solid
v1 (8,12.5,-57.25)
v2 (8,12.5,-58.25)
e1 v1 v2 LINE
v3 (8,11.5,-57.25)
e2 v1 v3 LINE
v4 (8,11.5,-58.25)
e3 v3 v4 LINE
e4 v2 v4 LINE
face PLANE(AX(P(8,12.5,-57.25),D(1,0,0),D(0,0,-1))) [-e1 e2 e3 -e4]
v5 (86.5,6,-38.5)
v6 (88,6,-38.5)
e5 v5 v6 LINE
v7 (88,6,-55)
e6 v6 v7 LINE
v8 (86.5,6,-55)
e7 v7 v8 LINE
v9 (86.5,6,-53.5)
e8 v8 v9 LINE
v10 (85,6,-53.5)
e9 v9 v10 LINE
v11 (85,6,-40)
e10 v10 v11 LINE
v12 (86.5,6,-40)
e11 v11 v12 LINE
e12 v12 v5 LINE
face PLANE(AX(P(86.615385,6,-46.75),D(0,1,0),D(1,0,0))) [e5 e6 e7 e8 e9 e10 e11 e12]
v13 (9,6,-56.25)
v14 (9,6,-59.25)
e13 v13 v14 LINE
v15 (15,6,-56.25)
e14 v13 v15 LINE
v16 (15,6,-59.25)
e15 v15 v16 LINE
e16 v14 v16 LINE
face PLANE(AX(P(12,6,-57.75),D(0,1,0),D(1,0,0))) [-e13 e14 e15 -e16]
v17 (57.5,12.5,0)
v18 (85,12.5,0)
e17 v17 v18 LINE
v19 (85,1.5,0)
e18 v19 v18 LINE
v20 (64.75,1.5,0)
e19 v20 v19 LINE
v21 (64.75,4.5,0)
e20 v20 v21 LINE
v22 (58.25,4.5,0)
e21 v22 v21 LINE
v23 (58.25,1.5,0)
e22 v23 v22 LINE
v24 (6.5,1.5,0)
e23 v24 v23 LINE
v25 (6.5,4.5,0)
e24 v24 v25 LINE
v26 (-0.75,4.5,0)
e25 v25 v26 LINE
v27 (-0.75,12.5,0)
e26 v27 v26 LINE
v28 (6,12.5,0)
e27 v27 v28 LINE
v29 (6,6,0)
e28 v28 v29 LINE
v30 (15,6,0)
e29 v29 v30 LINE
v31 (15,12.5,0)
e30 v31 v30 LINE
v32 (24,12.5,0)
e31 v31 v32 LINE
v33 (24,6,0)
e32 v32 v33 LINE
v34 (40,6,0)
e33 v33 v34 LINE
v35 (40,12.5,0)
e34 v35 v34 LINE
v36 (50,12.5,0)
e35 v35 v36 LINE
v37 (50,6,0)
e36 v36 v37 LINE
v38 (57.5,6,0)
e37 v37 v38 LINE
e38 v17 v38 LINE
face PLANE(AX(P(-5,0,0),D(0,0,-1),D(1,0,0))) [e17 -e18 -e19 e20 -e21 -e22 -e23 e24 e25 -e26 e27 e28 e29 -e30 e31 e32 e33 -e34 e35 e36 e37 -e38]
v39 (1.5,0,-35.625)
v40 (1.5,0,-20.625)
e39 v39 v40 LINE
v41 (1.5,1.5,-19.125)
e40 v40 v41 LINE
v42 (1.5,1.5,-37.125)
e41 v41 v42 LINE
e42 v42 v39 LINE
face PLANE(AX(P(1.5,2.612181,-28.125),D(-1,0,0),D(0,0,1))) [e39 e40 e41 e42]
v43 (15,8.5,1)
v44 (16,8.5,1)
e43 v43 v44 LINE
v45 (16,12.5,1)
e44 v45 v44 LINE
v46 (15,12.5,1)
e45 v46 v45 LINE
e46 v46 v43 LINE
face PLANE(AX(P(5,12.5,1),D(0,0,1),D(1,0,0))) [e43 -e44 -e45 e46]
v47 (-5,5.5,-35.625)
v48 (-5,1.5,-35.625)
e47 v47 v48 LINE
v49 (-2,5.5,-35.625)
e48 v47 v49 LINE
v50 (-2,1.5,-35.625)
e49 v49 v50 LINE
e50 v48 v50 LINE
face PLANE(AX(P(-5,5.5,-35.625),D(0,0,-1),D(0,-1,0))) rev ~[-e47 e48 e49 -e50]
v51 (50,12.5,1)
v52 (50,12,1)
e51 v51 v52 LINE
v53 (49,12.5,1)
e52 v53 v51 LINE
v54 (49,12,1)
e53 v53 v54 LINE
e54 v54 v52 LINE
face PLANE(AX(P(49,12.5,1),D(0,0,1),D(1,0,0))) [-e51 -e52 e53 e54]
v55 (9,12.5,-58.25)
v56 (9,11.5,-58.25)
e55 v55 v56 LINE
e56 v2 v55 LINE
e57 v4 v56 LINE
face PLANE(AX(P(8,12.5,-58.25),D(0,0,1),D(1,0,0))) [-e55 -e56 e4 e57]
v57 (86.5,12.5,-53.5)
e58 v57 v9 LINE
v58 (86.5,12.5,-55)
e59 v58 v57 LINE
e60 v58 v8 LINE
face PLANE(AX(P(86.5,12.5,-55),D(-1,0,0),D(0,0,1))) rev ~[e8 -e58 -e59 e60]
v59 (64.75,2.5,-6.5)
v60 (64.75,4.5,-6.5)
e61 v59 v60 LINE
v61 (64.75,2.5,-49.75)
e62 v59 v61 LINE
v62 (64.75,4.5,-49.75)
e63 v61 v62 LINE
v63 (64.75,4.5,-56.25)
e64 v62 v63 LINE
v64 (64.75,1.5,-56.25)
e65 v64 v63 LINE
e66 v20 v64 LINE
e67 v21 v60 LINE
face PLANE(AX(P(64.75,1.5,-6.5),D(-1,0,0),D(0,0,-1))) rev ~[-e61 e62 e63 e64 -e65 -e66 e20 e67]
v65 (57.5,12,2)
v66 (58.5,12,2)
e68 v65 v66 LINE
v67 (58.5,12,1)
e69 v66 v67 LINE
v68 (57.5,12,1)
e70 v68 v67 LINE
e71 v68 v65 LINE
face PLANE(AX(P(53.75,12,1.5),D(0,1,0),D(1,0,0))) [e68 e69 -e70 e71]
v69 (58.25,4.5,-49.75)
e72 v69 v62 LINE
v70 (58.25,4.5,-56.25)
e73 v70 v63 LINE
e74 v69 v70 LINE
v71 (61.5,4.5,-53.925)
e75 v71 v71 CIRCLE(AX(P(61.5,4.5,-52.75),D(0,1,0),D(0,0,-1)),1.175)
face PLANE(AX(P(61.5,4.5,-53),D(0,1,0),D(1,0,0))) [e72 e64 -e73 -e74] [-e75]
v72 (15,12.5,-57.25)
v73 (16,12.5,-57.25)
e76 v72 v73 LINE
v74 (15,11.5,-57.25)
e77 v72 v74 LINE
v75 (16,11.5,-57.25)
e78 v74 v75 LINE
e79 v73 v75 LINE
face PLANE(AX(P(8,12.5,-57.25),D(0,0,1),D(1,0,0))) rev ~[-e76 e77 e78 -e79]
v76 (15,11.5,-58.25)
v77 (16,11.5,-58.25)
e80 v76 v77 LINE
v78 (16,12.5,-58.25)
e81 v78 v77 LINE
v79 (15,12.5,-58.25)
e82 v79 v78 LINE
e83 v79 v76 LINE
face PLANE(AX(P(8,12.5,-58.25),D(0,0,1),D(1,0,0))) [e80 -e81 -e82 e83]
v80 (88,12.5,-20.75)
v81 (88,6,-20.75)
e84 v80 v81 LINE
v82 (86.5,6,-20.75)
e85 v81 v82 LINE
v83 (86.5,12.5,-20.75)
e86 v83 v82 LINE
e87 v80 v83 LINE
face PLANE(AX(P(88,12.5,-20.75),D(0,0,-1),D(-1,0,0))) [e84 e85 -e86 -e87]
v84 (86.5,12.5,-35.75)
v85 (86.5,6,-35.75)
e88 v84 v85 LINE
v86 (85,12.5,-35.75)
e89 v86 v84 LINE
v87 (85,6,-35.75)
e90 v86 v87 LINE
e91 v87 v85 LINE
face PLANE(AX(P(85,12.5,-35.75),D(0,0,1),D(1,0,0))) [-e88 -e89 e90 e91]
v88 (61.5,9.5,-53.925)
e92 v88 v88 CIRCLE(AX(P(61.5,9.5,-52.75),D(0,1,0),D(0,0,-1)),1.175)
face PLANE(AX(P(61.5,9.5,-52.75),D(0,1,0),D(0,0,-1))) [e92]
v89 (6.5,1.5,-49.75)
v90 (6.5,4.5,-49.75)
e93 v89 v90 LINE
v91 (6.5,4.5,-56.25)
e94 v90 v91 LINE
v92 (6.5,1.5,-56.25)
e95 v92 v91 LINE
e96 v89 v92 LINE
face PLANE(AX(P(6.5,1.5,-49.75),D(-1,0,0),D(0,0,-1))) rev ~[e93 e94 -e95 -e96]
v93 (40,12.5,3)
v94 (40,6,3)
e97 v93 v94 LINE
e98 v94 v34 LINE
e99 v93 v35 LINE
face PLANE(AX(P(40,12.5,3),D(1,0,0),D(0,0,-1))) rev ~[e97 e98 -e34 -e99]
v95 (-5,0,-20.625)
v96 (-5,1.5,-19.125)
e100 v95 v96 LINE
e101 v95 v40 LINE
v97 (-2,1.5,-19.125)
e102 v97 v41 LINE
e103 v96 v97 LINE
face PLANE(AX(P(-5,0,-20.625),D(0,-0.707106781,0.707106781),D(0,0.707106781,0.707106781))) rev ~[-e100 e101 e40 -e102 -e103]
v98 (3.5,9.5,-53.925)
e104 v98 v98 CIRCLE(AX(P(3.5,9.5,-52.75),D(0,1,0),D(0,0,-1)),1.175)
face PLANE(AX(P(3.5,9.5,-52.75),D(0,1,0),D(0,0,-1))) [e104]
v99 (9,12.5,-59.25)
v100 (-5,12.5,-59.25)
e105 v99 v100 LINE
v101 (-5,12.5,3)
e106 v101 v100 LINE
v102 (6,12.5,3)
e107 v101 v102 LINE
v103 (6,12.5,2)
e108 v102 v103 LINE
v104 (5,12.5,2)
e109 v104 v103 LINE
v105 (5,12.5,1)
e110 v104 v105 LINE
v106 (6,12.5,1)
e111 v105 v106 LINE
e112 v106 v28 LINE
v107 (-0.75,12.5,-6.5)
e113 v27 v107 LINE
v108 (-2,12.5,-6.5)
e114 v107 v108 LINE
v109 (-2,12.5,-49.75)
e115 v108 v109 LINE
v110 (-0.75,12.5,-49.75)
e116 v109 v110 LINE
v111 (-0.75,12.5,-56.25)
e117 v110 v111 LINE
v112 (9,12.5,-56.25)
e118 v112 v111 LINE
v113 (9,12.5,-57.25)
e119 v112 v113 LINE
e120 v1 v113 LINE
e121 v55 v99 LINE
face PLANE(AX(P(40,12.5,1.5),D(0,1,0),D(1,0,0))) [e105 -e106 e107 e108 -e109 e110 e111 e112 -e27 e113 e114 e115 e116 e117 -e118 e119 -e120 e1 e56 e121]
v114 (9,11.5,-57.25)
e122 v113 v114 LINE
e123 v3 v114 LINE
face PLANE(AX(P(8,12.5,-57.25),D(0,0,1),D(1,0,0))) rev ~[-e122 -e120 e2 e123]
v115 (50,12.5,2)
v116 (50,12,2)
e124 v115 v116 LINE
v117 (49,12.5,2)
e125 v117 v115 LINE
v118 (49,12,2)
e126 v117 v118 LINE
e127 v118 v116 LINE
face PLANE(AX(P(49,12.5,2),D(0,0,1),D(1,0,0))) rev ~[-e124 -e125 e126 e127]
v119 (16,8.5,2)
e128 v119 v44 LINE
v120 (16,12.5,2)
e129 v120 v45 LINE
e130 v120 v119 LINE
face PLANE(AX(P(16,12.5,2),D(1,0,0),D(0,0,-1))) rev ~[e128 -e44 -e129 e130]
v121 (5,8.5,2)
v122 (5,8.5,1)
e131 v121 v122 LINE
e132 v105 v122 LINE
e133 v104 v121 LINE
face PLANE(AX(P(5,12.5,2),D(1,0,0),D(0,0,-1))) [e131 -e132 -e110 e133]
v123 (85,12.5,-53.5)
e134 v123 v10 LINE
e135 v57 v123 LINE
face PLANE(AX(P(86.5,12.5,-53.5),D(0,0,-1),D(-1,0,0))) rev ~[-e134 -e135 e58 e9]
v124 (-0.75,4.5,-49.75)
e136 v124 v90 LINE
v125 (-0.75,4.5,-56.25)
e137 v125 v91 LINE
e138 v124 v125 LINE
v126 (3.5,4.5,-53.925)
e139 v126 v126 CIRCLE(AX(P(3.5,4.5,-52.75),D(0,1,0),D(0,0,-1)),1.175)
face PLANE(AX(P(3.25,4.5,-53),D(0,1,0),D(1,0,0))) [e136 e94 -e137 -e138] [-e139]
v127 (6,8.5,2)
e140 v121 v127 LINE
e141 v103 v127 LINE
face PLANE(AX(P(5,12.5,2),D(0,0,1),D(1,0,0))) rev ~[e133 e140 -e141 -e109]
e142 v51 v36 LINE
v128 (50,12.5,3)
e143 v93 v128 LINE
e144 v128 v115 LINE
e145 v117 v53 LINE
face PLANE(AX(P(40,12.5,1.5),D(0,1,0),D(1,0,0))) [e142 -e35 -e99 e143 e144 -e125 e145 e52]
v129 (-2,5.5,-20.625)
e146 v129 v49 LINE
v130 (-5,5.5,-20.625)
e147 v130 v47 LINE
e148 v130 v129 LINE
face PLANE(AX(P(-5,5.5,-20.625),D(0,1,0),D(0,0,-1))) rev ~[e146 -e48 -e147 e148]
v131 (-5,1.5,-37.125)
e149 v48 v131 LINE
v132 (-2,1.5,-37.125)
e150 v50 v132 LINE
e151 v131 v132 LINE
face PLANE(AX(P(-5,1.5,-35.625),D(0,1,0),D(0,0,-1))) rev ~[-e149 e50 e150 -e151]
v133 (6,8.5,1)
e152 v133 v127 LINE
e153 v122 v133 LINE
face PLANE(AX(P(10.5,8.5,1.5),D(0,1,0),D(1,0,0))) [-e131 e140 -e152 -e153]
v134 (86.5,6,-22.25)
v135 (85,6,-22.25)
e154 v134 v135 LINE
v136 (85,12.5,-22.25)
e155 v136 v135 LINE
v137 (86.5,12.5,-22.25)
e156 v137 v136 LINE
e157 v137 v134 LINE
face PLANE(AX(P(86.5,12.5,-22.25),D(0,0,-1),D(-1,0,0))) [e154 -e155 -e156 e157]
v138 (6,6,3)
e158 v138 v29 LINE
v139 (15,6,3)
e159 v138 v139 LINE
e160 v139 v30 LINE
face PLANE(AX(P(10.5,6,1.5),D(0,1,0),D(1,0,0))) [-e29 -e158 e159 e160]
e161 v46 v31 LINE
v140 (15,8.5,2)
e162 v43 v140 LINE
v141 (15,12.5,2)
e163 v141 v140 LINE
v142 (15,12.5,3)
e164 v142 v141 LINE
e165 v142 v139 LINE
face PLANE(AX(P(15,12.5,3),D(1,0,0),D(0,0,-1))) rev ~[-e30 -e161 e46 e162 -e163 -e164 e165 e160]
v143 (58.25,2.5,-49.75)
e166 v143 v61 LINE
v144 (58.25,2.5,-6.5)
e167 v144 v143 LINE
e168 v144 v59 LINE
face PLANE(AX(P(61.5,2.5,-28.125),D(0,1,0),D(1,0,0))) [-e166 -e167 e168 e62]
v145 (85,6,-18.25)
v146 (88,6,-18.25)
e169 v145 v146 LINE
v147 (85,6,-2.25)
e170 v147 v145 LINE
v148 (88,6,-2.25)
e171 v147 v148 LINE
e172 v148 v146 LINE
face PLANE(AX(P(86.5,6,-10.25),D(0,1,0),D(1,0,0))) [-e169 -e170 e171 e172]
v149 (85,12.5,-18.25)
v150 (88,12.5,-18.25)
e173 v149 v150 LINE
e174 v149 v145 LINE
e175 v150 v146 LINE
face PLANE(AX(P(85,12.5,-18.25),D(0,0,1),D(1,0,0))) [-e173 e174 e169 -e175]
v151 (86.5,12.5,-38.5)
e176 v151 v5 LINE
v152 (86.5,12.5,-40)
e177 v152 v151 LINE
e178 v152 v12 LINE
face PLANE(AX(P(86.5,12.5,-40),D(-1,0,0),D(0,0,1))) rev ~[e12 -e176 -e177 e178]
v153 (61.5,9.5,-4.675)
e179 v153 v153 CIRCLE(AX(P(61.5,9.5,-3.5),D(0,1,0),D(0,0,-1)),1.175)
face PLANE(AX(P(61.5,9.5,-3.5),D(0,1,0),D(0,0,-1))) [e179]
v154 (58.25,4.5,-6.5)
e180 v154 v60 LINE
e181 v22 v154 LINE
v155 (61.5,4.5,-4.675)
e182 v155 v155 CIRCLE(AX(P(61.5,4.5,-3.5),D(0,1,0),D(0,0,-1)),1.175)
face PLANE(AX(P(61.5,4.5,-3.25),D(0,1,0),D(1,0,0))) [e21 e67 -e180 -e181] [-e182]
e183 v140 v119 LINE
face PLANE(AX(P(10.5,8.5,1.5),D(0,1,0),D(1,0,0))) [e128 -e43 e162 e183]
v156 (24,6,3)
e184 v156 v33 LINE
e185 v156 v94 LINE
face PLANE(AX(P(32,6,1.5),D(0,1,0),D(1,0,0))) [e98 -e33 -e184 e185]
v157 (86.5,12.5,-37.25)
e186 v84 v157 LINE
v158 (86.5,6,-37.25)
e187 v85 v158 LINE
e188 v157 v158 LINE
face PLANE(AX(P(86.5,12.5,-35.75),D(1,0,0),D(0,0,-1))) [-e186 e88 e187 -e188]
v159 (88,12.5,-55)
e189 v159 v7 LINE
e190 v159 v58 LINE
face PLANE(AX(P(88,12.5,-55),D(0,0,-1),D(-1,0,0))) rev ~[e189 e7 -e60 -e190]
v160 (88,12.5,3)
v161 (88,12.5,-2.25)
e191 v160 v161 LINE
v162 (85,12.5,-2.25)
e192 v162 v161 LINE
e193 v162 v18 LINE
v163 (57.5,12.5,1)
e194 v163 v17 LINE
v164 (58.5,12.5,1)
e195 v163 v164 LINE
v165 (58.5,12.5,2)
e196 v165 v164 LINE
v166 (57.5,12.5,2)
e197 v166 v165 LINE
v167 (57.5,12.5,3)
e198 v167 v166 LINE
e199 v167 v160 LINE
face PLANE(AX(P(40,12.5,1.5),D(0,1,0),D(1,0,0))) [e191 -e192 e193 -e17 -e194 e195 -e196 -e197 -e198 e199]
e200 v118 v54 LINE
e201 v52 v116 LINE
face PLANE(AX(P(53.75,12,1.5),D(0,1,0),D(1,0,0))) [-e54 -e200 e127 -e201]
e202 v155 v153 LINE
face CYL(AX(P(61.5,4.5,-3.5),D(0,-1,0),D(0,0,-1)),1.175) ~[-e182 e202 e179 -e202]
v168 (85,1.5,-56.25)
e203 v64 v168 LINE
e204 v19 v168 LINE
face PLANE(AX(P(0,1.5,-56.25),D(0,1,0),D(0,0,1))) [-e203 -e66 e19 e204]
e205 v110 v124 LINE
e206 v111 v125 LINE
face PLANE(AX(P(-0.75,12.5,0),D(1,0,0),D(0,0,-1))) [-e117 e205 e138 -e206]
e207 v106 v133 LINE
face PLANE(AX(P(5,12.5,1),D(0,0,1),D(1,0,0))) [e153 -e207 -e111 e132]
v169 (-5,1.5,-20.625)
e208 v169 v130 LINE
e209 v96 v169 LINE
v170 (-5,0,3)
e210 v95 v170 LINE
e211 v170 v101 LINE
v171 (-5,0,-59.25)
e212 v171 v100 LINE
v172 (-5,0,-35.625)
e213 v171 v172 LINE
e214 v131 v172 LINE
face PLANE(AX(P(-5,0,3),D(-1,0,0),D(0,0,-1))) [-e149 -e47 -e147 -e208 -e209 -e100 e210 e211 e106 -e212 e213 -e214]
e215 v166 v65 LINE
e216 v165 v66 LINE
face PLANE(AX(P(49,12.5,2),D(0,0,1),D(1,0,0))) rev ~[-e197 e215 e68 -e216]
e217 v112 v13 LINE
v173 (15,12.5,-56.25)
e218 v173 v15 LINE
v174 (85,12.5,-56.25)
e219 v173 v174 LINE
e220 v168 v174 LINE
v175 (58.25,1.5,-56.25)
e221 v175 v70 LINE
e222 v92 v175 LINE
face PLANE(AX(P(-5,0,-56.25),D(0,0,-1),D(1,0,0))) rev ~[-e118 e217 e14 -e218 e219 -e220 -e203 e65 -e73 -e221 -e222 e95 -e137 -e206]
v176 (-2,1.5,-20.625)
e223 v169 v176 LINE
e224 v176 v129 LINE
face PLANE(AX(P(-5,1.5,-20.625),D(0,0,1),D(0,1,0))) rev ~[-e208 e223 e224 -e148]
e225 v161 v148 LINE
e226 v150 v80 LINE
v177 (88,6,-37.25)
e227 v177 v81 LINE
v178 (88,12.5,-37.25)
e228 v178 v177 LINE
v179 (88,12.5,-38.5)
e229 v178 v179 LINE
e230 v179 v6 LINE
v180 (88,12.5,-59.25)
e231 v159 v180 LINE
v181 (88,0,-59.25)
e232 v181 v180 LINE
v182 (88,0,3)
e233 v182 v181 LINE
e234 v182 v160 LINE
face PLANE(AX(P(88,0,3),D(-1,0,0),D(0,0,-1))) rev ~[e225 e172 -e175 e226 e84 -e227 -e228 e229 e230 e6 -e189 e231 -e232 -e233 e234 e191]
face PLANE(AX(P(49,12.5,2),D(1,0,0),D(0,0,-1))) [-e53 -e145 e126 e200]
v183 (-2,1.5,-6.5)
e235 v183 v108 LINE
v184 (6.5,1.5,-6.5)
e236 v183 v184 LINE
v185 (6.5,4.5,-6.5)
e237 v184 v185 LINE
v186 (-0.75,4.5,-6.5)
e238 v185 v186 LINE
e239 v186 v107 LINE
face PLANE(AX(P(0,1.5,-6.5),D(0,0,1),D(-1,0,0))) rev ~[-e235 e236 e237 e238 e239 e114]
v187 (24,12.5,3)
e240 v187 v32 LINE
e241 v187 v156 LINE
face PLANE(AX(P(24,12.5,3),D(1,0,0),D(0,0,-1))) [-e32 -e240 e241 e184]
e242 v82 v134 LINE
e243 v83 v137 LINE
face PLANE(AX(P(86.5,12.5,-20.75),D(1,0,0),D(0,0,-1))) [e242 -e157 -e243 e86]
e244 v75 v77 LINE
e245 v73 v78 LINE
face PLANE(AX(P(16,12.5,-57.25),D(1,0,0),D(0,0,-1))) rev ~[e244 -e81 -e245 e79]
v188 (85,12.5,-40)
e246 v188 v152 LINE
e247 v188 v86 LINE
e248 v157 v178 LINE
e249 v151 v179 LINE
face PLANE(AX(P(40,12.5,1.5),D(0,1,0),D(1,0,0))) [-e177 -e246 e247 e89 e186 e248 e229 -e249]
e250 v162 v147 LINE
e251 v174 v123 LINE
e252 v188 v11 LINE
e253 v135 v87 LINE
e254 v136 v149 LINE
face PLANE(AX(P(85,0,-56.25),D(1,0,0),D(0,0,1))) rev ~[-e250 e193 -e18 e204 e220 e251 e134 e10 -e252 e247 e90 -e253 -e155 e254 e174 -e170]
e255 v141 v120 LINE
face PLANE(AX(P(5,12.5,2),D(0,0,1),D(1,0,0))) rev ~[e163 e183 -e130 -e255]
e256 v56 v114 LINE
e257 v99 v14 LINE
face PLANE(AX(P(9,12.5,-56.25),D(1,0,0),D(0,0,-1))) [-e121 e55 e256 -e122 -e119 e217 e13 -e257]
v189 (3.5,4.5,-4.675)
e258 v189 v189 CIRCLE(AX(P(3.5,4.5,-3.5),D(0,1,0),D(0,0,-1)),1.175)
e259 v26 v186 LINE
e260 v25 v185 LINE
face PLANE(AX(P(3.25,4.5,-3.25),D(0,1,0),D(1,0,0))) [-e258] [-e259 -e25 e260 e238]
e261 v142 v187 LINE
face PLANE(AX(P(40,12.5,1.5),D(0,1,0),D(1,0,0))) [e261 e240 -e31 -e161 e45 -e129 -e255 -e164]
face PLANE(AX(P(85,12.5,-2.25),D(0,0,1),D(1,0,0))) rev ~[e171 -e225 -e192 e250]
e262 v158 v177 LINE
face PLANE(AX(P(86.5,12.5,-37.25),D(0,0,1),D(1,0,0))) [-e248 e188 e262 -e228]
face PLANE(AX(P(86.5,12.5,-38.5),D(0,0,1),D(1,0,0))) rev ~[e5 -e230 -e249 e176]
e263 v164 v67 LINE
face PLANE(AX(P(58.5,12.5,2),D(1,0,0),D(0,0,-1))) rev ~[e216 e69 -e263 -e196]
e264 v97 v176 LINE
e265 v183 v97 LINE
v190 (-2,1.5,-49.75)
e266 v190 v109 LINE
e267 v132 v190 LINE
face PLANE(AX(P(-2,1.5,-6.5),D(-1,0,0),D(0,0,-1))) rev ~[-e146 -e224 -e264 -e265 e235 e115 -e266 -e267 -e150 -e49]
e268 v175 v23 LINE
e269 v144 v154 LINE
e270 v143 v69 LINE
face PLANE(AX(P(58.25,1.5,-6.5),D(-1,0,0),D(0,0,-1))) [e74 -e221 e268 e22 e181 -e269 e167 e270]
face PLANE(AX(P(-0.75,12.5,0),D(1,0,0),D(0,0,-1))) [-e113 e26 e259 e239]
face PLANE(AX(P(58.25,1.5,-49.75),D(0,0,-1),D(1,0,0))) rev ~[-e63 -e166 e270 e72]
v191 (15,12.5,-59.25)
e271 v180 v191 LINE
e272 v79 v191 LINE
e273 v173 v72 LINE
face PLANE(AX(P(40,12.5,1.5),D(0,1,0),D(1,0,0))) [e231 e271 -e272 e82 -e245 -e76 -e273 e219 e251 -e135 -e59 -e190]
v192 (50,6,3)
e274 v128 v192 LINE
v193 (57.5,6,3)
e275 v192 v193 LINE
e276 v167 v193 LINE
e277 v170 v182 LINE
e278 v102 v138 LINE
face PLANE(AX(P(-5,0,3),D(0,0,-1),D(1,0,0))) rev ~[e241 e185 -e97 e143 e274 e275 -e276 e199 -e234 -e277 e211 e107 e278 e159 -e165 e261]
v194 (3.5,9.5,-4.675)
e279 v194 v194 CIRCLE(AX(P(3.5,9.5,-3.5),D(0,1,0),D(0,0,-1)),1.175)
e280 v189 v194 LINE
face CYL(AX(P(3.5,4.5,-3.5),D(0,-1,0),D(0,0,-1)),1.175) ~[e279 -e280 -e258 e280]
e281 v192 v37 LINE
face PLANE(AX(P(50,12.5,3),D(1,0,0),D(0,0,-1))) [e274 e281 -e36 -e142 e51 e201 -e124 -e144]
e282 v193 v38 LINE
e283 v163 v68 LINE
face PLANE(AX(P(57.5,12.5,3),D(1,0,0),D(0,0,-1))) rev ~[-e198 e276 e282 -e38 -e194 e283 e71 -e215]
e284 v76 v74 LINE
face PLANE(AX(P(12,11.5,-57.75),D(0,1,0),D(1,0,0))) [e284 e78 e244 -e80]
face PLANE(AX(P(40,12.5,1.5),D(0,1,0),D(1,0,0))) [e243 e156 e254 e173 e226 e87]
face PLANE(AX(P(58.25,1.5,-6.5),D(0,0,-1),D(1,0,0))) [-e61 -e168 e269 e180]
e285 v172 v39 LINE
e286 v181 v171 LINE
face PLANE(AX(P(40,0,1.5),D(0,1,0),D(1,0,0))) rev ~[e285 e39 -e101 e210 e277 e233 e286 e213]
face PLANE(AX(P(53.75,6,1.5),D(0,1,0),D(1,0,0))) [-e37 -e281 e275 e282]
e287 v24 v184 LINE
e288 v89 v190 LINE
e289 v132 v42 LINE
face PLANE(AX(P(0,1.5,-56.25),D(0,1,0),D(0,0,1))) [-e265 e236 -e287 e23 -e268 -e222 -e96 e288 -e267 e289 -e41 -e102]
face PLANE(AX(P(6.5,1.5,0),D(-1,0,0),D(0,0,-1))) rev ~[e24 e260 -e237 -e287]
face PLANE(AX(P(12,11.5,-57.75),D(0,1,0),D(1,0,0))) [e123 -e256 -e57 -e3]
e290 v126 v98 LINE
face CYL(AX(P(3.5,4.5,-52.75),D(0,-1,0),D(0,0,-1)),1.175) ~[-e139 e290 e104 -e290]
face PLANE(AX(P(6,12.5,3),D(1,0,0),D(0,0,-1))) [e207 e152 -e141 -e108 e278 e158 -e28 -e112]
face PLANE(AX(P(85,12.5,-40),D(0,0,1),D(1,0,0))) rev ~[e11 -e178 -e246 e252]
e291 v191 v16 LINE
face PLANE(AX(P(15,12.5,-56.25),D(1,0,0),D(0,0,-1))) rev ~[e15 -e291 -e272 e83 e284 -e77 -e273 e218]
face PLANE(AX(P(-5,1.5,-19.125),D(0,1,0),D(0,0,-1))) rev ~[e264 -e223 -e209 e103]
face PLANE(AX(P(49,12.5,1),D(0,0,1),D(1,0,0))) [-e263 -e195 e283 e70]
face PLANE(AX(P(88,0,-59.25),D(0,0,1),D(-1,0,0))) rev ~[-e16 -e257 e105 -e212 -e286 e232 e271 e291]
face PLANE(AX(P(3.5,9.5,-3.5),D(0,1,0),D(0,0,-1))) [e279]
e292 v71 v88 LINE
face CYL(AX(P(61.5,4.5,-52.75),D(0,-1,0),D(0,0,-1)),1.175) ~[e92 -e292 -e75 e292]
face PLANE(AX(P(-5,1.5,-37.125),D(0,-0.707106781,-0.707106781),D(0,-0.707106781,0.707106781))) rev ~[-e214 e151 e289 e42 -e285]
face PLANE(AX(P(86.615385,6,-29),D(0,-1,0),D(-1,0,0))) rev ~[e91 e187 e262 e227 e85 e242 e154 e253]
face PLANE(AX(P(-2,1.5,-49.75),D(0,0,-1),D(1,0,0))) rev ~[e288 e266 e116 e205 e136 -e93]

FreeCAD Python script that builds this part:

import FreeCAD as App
import Part
import Sketcher
from FreeCAD import Vector
Q = App.Units.Quantity


def add_polygon(sketch, points):
    """Adds a closed chain of lines whose ends are joined by coincident constraints."""
    first, n = sketch.GeometryCount, len(points)
    for a, b in zip(points, points[1:] + points[:1]):
        sketch.addGeometry(Part.LineSegment(App.Vector(*a, 0), App.Vector(*b, 0)), False)
    for i in range(n):
        sketch.addConstraint(Sketcher.Constraint("Coincident", first + i, 2, first + (i + 1) % n, 1))

doc = App.newDocument("Part")
body = doc.addObject("PartDesign::Body", "Body")

# Sketch on XZ plane
sketch1 = doc.addObject("Sketcher::SketchObject", "Sketch")
body.addObject(sketch1)
sketch1.AttachmentSupport = (doc.XZ_Plane, [""])
sketch1.MapMode = "FlatFace"
add_polygon(sketch1, [(0, -56), (0, 0), (85, 0), (85, -56)])  # lines 0-3
sketch1.addConstraint(Sketcher.Constraint("Vertical", 0))
sketch1.addConstraint(Sketcher.Constraint("Horizontal", 1))
sketch1.addConstraint(Sketcher.Constraint("Vertical", 2))
sketch1.addConstraint(Sketcher.Constraint("Horizontal", 3))
sketch1.addConstraint(Sketcher.Constraint("Coincident", 0, 2, -1, 1))
sketch1.addConstraint(Sketcher.Constraint("DistanceX", 1, 1, 1, 2, Q("85 mm")))
sketch1.addConstraint(Sketcher.Constraint("DistanceY", 0, 1, 0, 2, Q("56.25 mm")))
pad1 = doc.addObject("PartDesign::Pad", "Pad")
body.addObject(pad1)
pad1.Profile = sketch1
pad1.Length = 1.5
pad1.Reversed = True

# Sketch on XZ plane
sketch2 = doc.addObject("Sketcher::SketchObject", "Sketch001")
body.addObject(sketch2)
sketch2.AttachmentSupport = (doc.XZ_Plane, [""])
sketch2.MapMode = "FlatFace"
sketch2.AttachmentOffset = App.Placement(Vector(0, 0, -1.5), App.Rotation())
add_polygon(sketch2, [(0, -6), (0, 0), (6, 0), (6, -6)])  # lines 0-3
add_polygon(sketch2, [(58, -6), (58, 0), (65, 0), (65, -6)])  # lines 4-7
add_polygon(sketch2, [(58, -56), (58, -50), (65, -50), (65, -56)])  # lines 8-11
add_polygon(sketch2, [(0, -56), (0, -50), (6, -50), (6, -56)])  # lines 12-15
sketch2.addConstraint(Sketcher.Constraint("Vertical", 0))
sketch2.addConstraint(Sketcher.Constraint("Horizontal", 1))
sketch2.addConstraint(Sketcher.Constraint("Vertical", 2))
sketch2.addConstraint(Sketcher.Constraint("Horizontal", 3))
sketch2.addConstraint(Sketcher.Constraint("Vertical", 4))
sketch2.addConstraint(Sketcher.Constraint("Horizontal", 5))
sketch2.addConstraint(Sketcher.Constraint("Vertical", 6))
sketch2.addConstraint(Sketcher.Constraint("Horizontal", 7))
sketch2.addConstraint(Sketcher.Constraint("Vertical", 8))
sketch2.addConstraint(Sketcher.Constraint("Horizontal", 9))
sketch2.addConstraint(Sketcher.Constraint("Vertical", 10))
sketch2.addConstraint(Sketcher.Constraint("Horizontal", 11))
sketch2.addConstraint(Sketcher.Constraint("Vertical", 12))
sketch2.addConstraint(Sketcher.Constraint("Horizontal", 13))
sketch2.addConstraint(Sketcher.Constraint("Vertical", 14))
sketch2.addConstraint(Sketcher.Constraint("Horizontal", 15))
sketch2.addConstraint(Sketcher.Constraint("Coincident", 0, 2, -1, 1))
sketch2.addConstraint(Sketcher.Constraint("PointOnObject", 4, 2, -1))
sketch2.addConstraint(Sketcher.Constraint("PointOnObject", 12, 2, -2))
sketch2.addConstraint(Sketcher.Constraint("Horizontal", 3, 2, 6, 2))
sketch2.addConstraint(Sketcher.Constraint("Horizontal", 9, 2, 12, 2))
sketch2.addConstraint(Sketcher.Constraint("Horizontal", 11, 2, 14, 2))
sketch2.addConstraint(Sketcher.Constraint("Vertical", 7, 2, 8, 2))
sketch2.addConstraint(Sketcher.Constraint("Vertical", 6, 2, 9, 2))
sketch2.addConstraint(Sketcher.Constraint("Vertical", 2, 2, 13, 2))
sketch2.addConstraint(Sketcher.Constraint("Equal", 3, 5))
sketch2.addConstraint(Sketcher.Constraint("Equal", 15, 0))
sketch2.addConstraint(Sketcher.Constraint("Equal", 6, 8))
sketch2.addConstraint(Sketcher.Constraint("DistanceX", 1, 1, 1, 2, Q("6.5 mm")))
sketch2.addConstraint(Sketcher.Constraint("DistanceX", -1, 1, 4, 2, Q("58.25 mm")))
sketch2.addConstraint(Sketcher.Constraint("DistanceY", 8, 2, -1, 1, Q("49.75 mm")))
pad2 = doc.addObject("PartDesign::Pad", "Pad001")
body.addObject(pad2)
pad2.Profile = sketch2
pad2.Length = 3
pad2.Reversed = True

# Sketch on XZ plane
sketch3 = doc.addObject("Sketcher::SketchObject", "Sketch002")
body.addObject(sketch3)
sketch3.AttachmentSupport = (doc.XZ_Plane, [""])
sketch3.MapMode = "FlatFace"
sketch3.AttachmentOffset = App.Placement(Vector(0, 0, -4.5), App.Rotation())
sketch3.addGeometry(Part.Circle(Vector(3.5, -3.5, 0), Vector(0, 0, 1), 1.2), False)
sketch3.addGeometry(Part.Circle(Vector(61.5, -3.5, 0), Vector(0, 0, 1), 1.2), False)
sketch3.addGeometry(Part.Circle(Vector(61.5, -52.8, 0), Vector(0, 0, 1), 1.2), False)
sketch3.addGeometry(Part.Circle(Vector(3.5, -52.8, 0), Vector(0, 0, 1), 1.2), False)
sketch3.addConstraint(Sketcher.Constraint("Equal", 0, 1))
sketch3.addConstraint(Sketcher.Constraint("Equal", 1, 2))
sketch3.addConstraint(Sketcher.Constraint("Equal", 2, 3))
sketch3.addConstraint(Sketcher.Constraint("Horizontal", 0, 3, 1, 3))
sketch3.addConstraint(Sketcher.Constraint("Horizontal", 2, 3, 3, 3))
sketch3.addConstraint(Sketcher.Constraint("Vertical", 1, 3, 2, 3))
sketch3.addConstraint(Sketcher.Constraint("Vertical", 0, 3, 3, 3))
sketch3.addConstraint(Sketcher.Constraint("Diameter", 0, Q("2.35 mm")))
sketch3.addConstraint(Sketcher.Constraint("DistanceX", 0, 3, 1, 3, Q("58 mm")))
sketch3.addConstraint(Sketcher.Constraint("DistanceX", -1, 1, 0, 3, Q("3.5 mm")))
sketch3.addConstraint(Sketcher.Constraint("DistanceY", 0, 3, -1, 1, Q("3.5 mm")))
sketch3.addConstraint(Sketcher.Constraint("DistanceY", 2, 3, -1, 1, Q("52.75 mm")))
pad3 = doc.addObject("PartDesign::Pad", "Pad002")
body.addObject(pad3)
pad3.Profile = sketch3
pad3.Length = 5
pad3.Reversed = True

# Sketch on YZ plane
sketch4 = doc.addObject("Sketcher::SketchObject", "Sketch003")
body.addObject(sketch4)
sketch4.AttachmentSupport = (doc.YZ_Plane, [""])
sketch4.MapMode = "FlatFace"
add_polygon(sketch4, [(1.5, -56.2), (0, -56.2), (0, 0), (1.5, 0)])  # lines 0-3
sketch4.addConstraint(Sketcher.Constraint("Horizontal", 0))
sketch4.addConstraint(Sketcher.Constraint("Vertical", 1))
sketch4.addConstraint(Sketcher.Constraint("Horizontal", 2))
sketch4.addConstraint(Sketcher.Constraint("Vertical", 3))
sketch4.addConstraint(Sketcher.Constraint("Coincident", 1, 2, -1, 1))
sketch4.addConstraint(Sketcher.Constraint("DistanceX", 0, 2, 0, 1, Q("1.5 mm")))
sketch4.addConstraint(Sketcher.Constraint("DistanceY", 1, 1, 1, 2, Q("56.25 mm")))
pad4 = doc.addObject("PartDesign::Pad", "Pad003")
body.addObject(pad4)
pad4.Profile = sketch4
pad4.Length = 5
pad4.Reversed = True

# Sketch on XZ plane
sketch5 = doc.addObject("Sketcher::SketchObject", "Sketch004")
body.addObject(sketch5)
sketch5.AttachmentSupport = (doc.XZ_Plane, [""])
sketch5.MapMode = "FlatFace"
sketch5.AttachmentOffset = App.Placement(Vector(0, 0, -1.5), App.Rotation())
add_polygon(sketch5, [(-5, 0), (0, 0), (0, -6.5), (-2, -6.5), (-2, -49.8), (0, -49.8), (0, -56.2), (-5, -56.2)])  # lines 0-7
sketch5.addConstraint(Sketcher.Constraint("Horizontal", 0))
sketch5.addConstraint(Sketcher.Constraint("Vertical", 1))
sketch5.addConstraint(Sketcher.Constraint("Horizontal", 2))
sketch5.addConstraint(Sketcher.Constraint("Vertical", 3))
sketch5.addConstraint(Sketcher.Constraint("Horizontal", 4))
sketch5.addConstraint(Sketcher.Constraint("Vertical", 5))
sketch5.addConstraint(Sketcher.Constraint("Horizontal", 6))
sketch5.addConstraint(Sketcher.Constraint("Vertical", 7))
sketch5.addConstraint(Sketcher.Constraint("Coincident", 0, 2, -1, 1))
sketch5.addConstraint(Sketcher.Constraint("PointOnObject", 4, 2, -2))
sketch5.addConstraint(Sketcher.Constraint("Equal", 1, 5))
sketch5.addConstraint(Sketcher.Constraint("DistanceX", 0, 1, 0, 2, Q("5 mm")))
sketch5.addConstraint(Sketcher.Constraint("DistanceX", 2, 2, 2, 1, Q("2 mm")))
sketch5.addConstraint(Sketcher.Constraint("DistanceY", 1, 2, 1, 1, Q("6.5 mm")))
sketch5.addConstraint(Sketcher.Constraint("DistanceY", 3, 2, 3, 1, Q("43.25 mm")))
pad5 = doc.addObject("PartDesign::Pad", "Pad004")
body.addObject(pad5)
pad5.Profile = sketch5
pad5.Length = 11
pad5.Reversed = True

# Sketch on XZ plane
sketch6 = doc.addObject("Sketcher::SketchObject", "Sketch005")
body.addObject(sketch6)
sketch6.AttachmentSupport = (doc.XZ_Plane, [""])
sketch6.MapMode = "FlatFace"
add_polygon(sketch6, [(-5, 0), (-5, 3), (88, 3), (88, -59.2), (-5, -59.2), (-5, -56.2), (85, -56.2), (85, 0)])  # lines 0-7
sketch6.addConstraint(Sketcher.Constraint("Vertical", 0))
sketch6.addConstraint(Sketcher.Constraint("Horizontal", 1))
sketch6.addConstraint(Sketcher.Constraint("Vertical", 2))
sketch6.addConstraint(Sketcher.Constraint("Horizontal", 3))
sketch6.addConstraint(Sketcher.Constraint("Vertical", 4))
sketch6.addConstraint(Sketcher.Constraint("Horizontal", 5))
sketch6.addConstraint(Sketcher.Constraint("Vertical", 6))
sketch6.addConstraint(Sketcher.Constraint("Horizontal", 7))
sketch6.addConstraint(Sketcher.Constraint("PointOnObject", 6, 2, -1))
sketch6.addConstraint(Sketcher.Constraint("Vertical", 0, 2, 3, 2))
sketch6.addConstraint(Sketcher.Constraint("Equal", 0, 4))
sketch6.addConstraint(Sketcher.Constraint("DistanceX", 1, 1, 1, 2, Q("93 mm")))
sketch6.addConstraint(Sketcher.Constraint("DistanceX", 5, 1, 5, 2, Q("90 mm")))
sketch6.addConstraint(Sketcher.Constraint("DistanceY", 0, 1, 0, 2, Q("3 mm")))
sketch6.addConstraint(Sketcher.Constraint("DistanceX", 0, 2, -1, 1, Q("5 mm")))
sketch6.addConstraint(Sketcher.Constraint("DistanceY", 2, 2, 2, 1, Q("62.25 mm")))
pad6 = doc.addObject("PartDesign::Pad", "Pad005")
body.addObject(pad6)
pad6.Profile = sketch6
pad6.Length = 12.5
pad6.Reversed = True

# Sketch on XZ plane
sketch7 = doc.addObject("Sketcher::SketchObject", "Sketch006")
body.addObject(sketch7)
sketch7.AttachmentSupport = (doc.XZ_Plane, [""])
sketch7.MapMode = "FlatFace"
sketch7.AttachmentOffset = App.Placement(Vector(0, 0, -12.5), App.Rotation())
add_polygon(sketch7, [(9, -59.2), (9, -56.2), (15, -56.2), (15, -59.2)])  # lines 0-3
add_polygon(sketch7, [(86.5, -40), (86.5, -38.5), (88, -38.5), (88, -55), (86.5, -55), (86.5, -53.5), (85, -53.5), (85, -40)])  # lines 4-11
add_polygon(sketch7, [(6, 0), (6, 3), (15, 3), (15, 0)])  # lines 12-15
add_polygon(sketch7, [(24, 0), (24, 3), (40, 3), (40, 0)])  # lines 16-19
add_polygon(sketch7, [(50, 0), (50, 3), (57.5, 3), (57.5, 0)])  # lines 20-23
add_polygon(sketch7, [(85, -18.2), (85, -2.2), (88, -2.2), (88, -18.2)])  # lines 24-27
add_polygon(sketch7, [(86.5, -37.2), (86.5, -35.8), (85, -35.8), (85, -22.2), (86.5, -22.2), (86.5, -20.8), (88, -20.8), (88, -37.2)])  # lines 28-35
sketch7.addConstraint(Sketcher.Constraint("Vertical", 0))
sketch7.addConstraint(Sketcher.Constraint("Horizontal", 1))
sketch7.addConstraint(Sketcher.Constraint("Vertical", 2))
sketch7.addConstraint(Sketcher.Constraint("Horizontal", 3))
sketch7.addConstraint(Sketcher.Constraint("Vertical", 4))
sketch7.addConstraint(Sketcher.Constraint("Horizontal", 5))
sketch7.addConstraint(Sketcher.Constraint("Vertical", 6))
sketch7.addConstraint(Sketcher.Constraint("Horizontal", 7))
sketch7.addConstraint(Sketcher.Constraint("Vertical", 8))
sketch7.addConstraint(Sketcher.Constraint("Horizontal", 9))
sketch7.addConstraint(Sketcher.Constraint("Vertical", 10))
sketch7.addConstraint(Sketcher.Constraint("Horizontal", 11))
sketch7.addConstraint(Sketcher.Constraint("Vertical", 12))
sketch7.addConstraint(Sketcher.Constraint("Horizontal", 13))
sketch7.addConstraint(Sketcher.Constraint("Vertical", 14))
sketch7.addConstraint(Sketcher.Constraint("Horizontal", 15))
sketch7.addConstraint(Sketcher.Constraint("Vertical", 16))
sketch7.addConstraint(Sketcher.Constraint("Horizontal", 17))
sketch7.addConstraint(Sketcher.Constraint("Vertical", 18))
sketch7.addConstraint(Sketcher.Constraint("Horizontal", 19))
sketch7.addConstraint(Sketcher.Constraint("Vertical", 20))
sketch7.addConstraint(Sketcher.Constraint("Horizontal", 21))
sketch7.addConstraint(Sketcher.Constraint("Vertical", 22))
sketch7.addConstraint(Sketcher.Constraint("Horizontal", 23))
sketch7.addConstraint(Sketcher.Constraint("Vertical", 24))
sketch7.addConstraint(Sketcher.Constraint("Horizontal", 25))
sketch7.addConstraint(Sketcher.Constraint("Vertical", 26))
sketch7.addConstraint(Sketcher.Constraint("Horizontal", 27))
sketch7.addConstraint(Sketcher.Constraint("Vertical", 28))
sketch7.addConstraint(Sketcher.Constraint("Horizontal", 29))
sketch7.addConstraint(Sketcher.Constraint("Vertical", 30))
sketch7.addConstraint(Sketcher.Constraint("Horizontal", 31))
sketch7.addConstraint(Sketcher.Constraint("Vertical", 32))
sketch7.addConstraint(Sketcher.Constraint("Horizontal", 33))
sketch7.addConstraint(Sketcher.Constraint("Vertical", 34))
sketch7.addConstraint(Sketcher.Constraint("Horizontal", 35))
sketch7.addConstraint(Sketcher.Constraint("PointOnObject", 14, 2, -1))
sketch7.addConstraint(Sketcher.Constraint("PointOnObject", 18, 2, -1))
sketch7.addConstraint(Sketcher.Constraint("PointOnObject", 22, 2, -1))
sketch7.addConstraint(Sketcher.Constraint("Horizontal", 13, 2, 16, 2))
sketch7.addConstraint(Sketcher.Constraint("Horizontal", 17, 2, 20, 2))
sketch7.addConstraint(Sketcher.Constraint("Vertical", 4, 2, 7, 2))
sketch7.addConstraint(Sketcher.Constraint("Vertical", 2, 2, 13, 2))
sketch7.addConstraint(Sketcher.Constraint("Vertical", 10, 2, 24, 2))
sketch7.addConstraint(Sketcher.Constraint("Vertical", 6, 2, 25, 2))
sketch7.addConstraint(Sketcher.Constraint("Vertical", 11, 2, 28, 2))
sketch7.addConstraint(Sketcher.Constraint("Vertical", 27, 2, 29, 2))
sketch7.addConstraint(Sketcher.Constraint("Vertical", 28, 2, 31, 2))
sketch7.addConstraint(Sketcher.Constraint("Vertical", 26, 2, 33, 2))
sketch7.addConstraint(Sketcher.Constraint("Equal", 7, 9))
sketch7.addConstraint(Sketcher.Constraint("Equal", 27, 0))
sketch7.addConstraint(Sketcher.Constraint("Equal", 35, 4))
sketch7.addConstraint(Sketcher.Constraint("Equal", 4, 8))
sketch7.addConstraint(Sketcher.Constraint("Equal", 2, 12))
sketch7.addConstraint(Sketcher.Constraint("Equal", 19, 24))
sketch7.addConstraint(Sketcher.Constraint("Equal", 8, 28))
sketch7.addConstraint(Sketcher.Constraint("Equal", 10, 30))
sketch7.addConstraint(Sketcher.Constraint("Equal", 28, 32))
sketch7.addConstraint(Sketcher.Constraint("DistanceX", 1, 1, 1, 2, Q("6 mm")))
sketch7.addConstraint(Sketcher.Constraint("DistanceX", 13, 1, 13, 2, Q("9 mm")))
sketch7.addConstraint(Sketcher.Constraint("DistanceX", 17, 1, 17, 2, Q("16 mm")))
sketch7.addConstraint(Sketcher.Constraint("DistanceX", 25, 1, 25, 2, Q("3 mm")))
sketch7.addConstraint(Sketcher.Constraint("DistanceX", 21, 1, 21, 2, Q("7.5 mm")))
sketch7.addConstraint(Sketcher.Constraint("DistanceY", 6, 2, 6, 1, Q("16.5 mm")))
sketch7.addConstraint(Sketcher.Constraint("DistanceX", -1, 1, 0, 2, Q("9 mm")))
sketch7.addConstraint(Sketcher.Constraint("DistanceX", -1, 1, 5, 2, Q("88 mm")))
sketch7.addConstraint(Sketcher.Constraint("DistanceY", 6, 2, -1, 1, Q("55 mm")))
sketch7.addConstraint(Sketcher.Constraint("DistanceX", -1, 1, 16, 2, Q("24 mm")))
sketch7.addConstraint(Sketcher.Constraint("DistanceX", -1, 1, 20, 2, Q("50 mm")))
sketch7.addConstraint(Sketcher.Constraint("DistanceY", 30, 2, 27, 2, Q("4 mm")))
sketch7.addConstraint(Sketcher.Constraint("DistanceY", 0, 2, -1, 1, Q("56.25 mm")))
sketch7.addConstraint(Sketcher.Constraint("DistanceY", 24, 2, -1, 1, Q("2.25 mm")))
pocket1 = doc.addObject("PartDesign::Pocket", "Pocket")
body.addObject(pocket1)
pocket1.Profile = sketch7
pocket1.Length = 6.5
pocket1.Reversed = True

# Sketch on YZ plane
sketch8 = doc.addObject("Sketcher::SketchObject", "Sketch007")
body.addObject(sketch8)
sketch8.AttachmentSupport = (doc.YZ_Plane, [""])
sketch8.MapMode = "FlatFace"
sketch8.AttachmentOffset = App.Placement(Vector(0, 0, -5), App.Rotation())
add_polygon(sketch8, [(0, -35.6), (0, -20.6), (1.5, -19.1), (1.5, -20.6), (5.5, -20.6), (5.5, -35.6), (1.5, -35.6), (1.5, -37.1)])  # lines 0-7
sketch8.addConstraint(Sketcher.Constraint("Vertical", 0))
sketch8.addConstraint(Sketcher.Constraint("Vertical", 2))
sketch8.addConstraint(Sketcher.Constraint("Horizontal", 3))
sketch8.addConstraint(Sketcher.Constraint("Vertical", 4))
sketch8.addConstraint(Sketcher.Constraint("Horizontal", 5))
sketch8.addConstraint(Sketcher.Constraint("Vertical", 6))
sketch8.addConstraint(Sketcher.Constraint("PointOnObject", 0, 2, -2))
sketch8.addConstraint(Sketcher.Constraint("Perpendicular", 1, 7))
sketch8.addConstraint(Sketcher.Constraint("Horizontal", 0, 2, 2, 2))
sketch8.addConstraint(Sketcher.Constraint("Horizontal", 5, 2, 7, 2))
sketch8.addConstraint(Sketcher.Constraint("Vertical", 2, 2, 5, 2))
sketch8.addConstraint(Sketcher.Constraint("Equal", 2, 6))
sketch8.addConstraint(Sketcher.Constraint("DistanceX", 3, 1, 3, 2, Q("4 mm")))
sketch8.addConstraint(Sketcher.Constraint("DistanceY", 0, 1, 0, 2, Q("15 mm")))
sketch8.addConstraint(Sketcher.Constraint("DistanceY", 2, 2, 2, 1, Q("1.5 mm")))
sketch8.addConstraint(Sketcher.Constraint("DistanceY", 0, 2, -1, 1, Q("20.625 mm")))
pocket2 = doc.addObject("PartDesign::Pocket", "Pocket001")
body.addObject(pocket2)
pocket2.Profile = sketch8
pocket2.Length = 6.5
pocket2.Reversed = True

# Sketch on XZ plane
sketch9 = doc.addObject("Sketcher::SketchObject", "Sketch008")
body.addObject(sketch9)
sketch9.AttachmentSupport = (doc.XZ_Plane, [""])
sketch9.MapMode = "FlatFace"
sketch9.AttachmentOffset = App.Placement(Vector(0, 0, -1.5), App.Rotation())
add_polygon(sketch9, [(58, -50), (58, -6), (65, -6), (65, -50)])  # lines 0-3
sketch9.addConstraint(Sketcher.Constraint("Vertical", 0))
sketch9.addConstraint(Sketcher.Constraint("Horizontal", 1))
sketch9.addConstraint(Sketcher.Constraint("Vertical", 2))
sketch9.addConstraint(Sketcher.Constraint("Horizontal", 3))
sketch9.addConstraint(Sketcher.Constraint("DistanceX", 1, 1, 1, 2, Q("6.5 mm")))
sketch9.addConstraint(Sketcher.Constraint("DistanceY", 0, 1, 0, 2, Q("43.25 mm")))
sketch9.addConstraint(Sketcher.Constraint("DistanceY", 0, 2, -1, 1, Q("6.5 mm")))
sketch9.addConstraint(Sketcher.Constraint("DistanceX", -1, 1, 0, 2, Q("58.25 mm")))
pad7 = doc.addObject("PartDesign::Pad", "Pad006")
body.addObject(pad7)
pad7.Profile = sketch9
pad7.Length = 1
pad7.Reversed = True

# Sketch on XZ plane
sketch10 = doc.addObject("Sketcher::SketchObject", "Sketch009")
body.addObject(sketch10)
sketch10.AttachmentSupport = (doc.XZ_Plane, [""])
sketch10.MapMode = "FlatFace"
sketch10.AttachmentOffset = App.Placement(Vector(0, 0, -12.5), App.Rotation())
add_polygon(sketch10, [(49, 1), (49, 2), (58.5, 2), (58.5, 1)])  # lines 0-3
sketch10.addConstraint(Sketcher.Constraint("Vertical", 0))
sketch10.addConstraint(Sketcher.Constraint("Horizontal", 1))
sketch10.addConstraint(Sketcher.Constraint("Vertical", 2))
sketch10.addConstraint(Sketcher.Constraint("Horizontal", 3))
sketch10.addConstraint(Sketcher.Constraint("DistanceY", 0, 1, 0, 2, Q("1 mm")))
sketch10.addConstraint(Sketcher.Constraint("DistanceX", 1, 1, 1, 2, Q("9.5 mm")))
sketch10.addConstraint(Sketcher.Constraint("DistanceX", -1, 1, 0, 2, Q("49 mm")))
sketch10.addConstraint(Sketcher.Constraint("DistanceY", -1, 1, 0, 2, Q("2 mm")))
pocket3 = doc.addObject("PartDesign::Pocket", "Pocket002")
body.addObject(pocket3)
pocket3.Profile = sketch10
pocket3.Length = 0.5
pocket3.Reversed = True

# Sketch on XZ plane
sketch11 = doc.addObject("Sketcher::SketchObject", "Sketch010")
body.addObject(sketch11)
sketch11.AttachmentSupport = (doc.XZ_Plane, [""])
sketch11.MapMode = "FlatFace"
sketch11.AttachmentOffset = App.Placement(Vector(0, 0, -12.5), App.Rotation())
add_polygon(sketch11, [(5, 1), (5, 2), (16, 2), (16, 1)])  # lines 0-3
sketch11.addConstraint(Sketcher.Constraint("Vertical", 0))
sketch11.addConstraint(Sketcher.Constraint("Horizontal", 1))
sketch11.addConstraint(Sketcher.Constraint("Vertical", 2))
sketch11.addConstraint(Sketcher.Constraint("Horizontal", 3))
sketch11.addConstraint(Sketcher.Constraint("DistanceX", 1, 1, 1, 2, Q("11 mm")))
sketch11.addConstraint(Sketcher.Constraint("DistanceY", 0, 1, 0, 2, Q("1 mm")))
sketch11.addConstraint(Sketcher.Constraint("DistanceX", -1, 1, 0, 2, Q("5 mm")))
sketch11.addConstraint(Sketcher.Constraint("DistanceY", -1, 1, 0, 2, Q("2 mm")))
pocket4 = doc.addObject("PartDesign::Pocket", "Pocket003")
body.addObject(pocket4)
pocket4.Profile = sketch11
pocket4.Length = 4
pocket4.Reversed = True

# Sketch on XZ plane
sketch12 = doc.addObject("Sketcher::SketchObject", "Sketch011")
body.addObject(sketch12)
sketch12.AttachmentSupport = (doc.XZ_Plane, [""])
sketch12.MapMode = "FlatFace"
sketch12.AttachmentOffset = App.Placement(Vector(0, 0, -12.5), App.Rotation())
add_polygon(sketch12, [(8, -58.2), (8, -57.2), (16, -57.2), (16, -58.2)])  # lines 0-3
sketch12.addConstraint(Sketcher.Constraint("Vertical", 0))
sketch12.addConstraint(Sketcher.Constraint("Horizontal", 1))
sketch12.addConstraint(Sketcher.Constraint("Vertical", 2))
sketch12.addConstraint(Sketcher.Constraint("Horizontal", 3))
sketch12.addConstraint(Sketcher.Constraint("DistanceX", 1, 1, 1, 2, Q("8 mm")))
sketch12.addConstraint(Sketcher.Constraint("DistanceY", 0, 1, 0, 2, Q("1 mm")))
sketch12.addConstraint(Sketcher.Constraint("DistanceX", -1, 1, 0, 2, Q("8 mm")))
sketch12.addConstraint(Sketcher.Constraint("DistanceY", 0, 2, -1, 1, Q("57.25 mm")))
pocket5 = doc.addObject("PartDesign::Pocket", "Pocket004")
body.addObject(pocket5)
pocket5.Profile = sketch12
pocket5.Length = 1
pocket5.Reversed = True

# Sketch on XZ plane
sketch13 = doc.addObject("Sketcher::SketchObject", "Sketch012")
body.addObject(sketch13)
sketch13.AttachmentSupport = (doc.XZ_Plane, [""])
sketch13.MapMode = "FlatFace"
sketch13.AttachmentOffset = App.Placement(Vector(0, 0, -12.5), App.Rotation())
add_polygon(sketch13, [(-0.8, -56.2), (-0.8, 0), (0, 0), (0, -56.2)])  # lines 0-3
sketch13.addConstraint(Sketcher.Constraint("Vertical", 0))
sketch13.addConstraint(Sketcher.Constraint("Horizontal", 1))
sketch13.addConstraint(Sketcher.Constraint("Vertical", 2))
sketch13.addConstraint(Sketcher.Constraint("Horizontal", 3))
sketch13.addConstraint(Sketcher.Constraint("Coincident", 1, 2, -1, 1))
sketch13.addConstraint(Sketcher.Constraint("DistanceX", 1, 1, 1, 2, Q("0.75 mm")))
sketch13.addConstraint(Sketcher.Constraint("DistanceY", 0, 1, 0, 2, Q("56.25 mm")))
pocket6 = doc.addObject("PartDesign::Pocket", "Pocket005")
body.addObject(pocket6)
pocket6.Profile = sketch13
pocket6.Length = 8
pocket6.Reversed = True

doc.recompute()
